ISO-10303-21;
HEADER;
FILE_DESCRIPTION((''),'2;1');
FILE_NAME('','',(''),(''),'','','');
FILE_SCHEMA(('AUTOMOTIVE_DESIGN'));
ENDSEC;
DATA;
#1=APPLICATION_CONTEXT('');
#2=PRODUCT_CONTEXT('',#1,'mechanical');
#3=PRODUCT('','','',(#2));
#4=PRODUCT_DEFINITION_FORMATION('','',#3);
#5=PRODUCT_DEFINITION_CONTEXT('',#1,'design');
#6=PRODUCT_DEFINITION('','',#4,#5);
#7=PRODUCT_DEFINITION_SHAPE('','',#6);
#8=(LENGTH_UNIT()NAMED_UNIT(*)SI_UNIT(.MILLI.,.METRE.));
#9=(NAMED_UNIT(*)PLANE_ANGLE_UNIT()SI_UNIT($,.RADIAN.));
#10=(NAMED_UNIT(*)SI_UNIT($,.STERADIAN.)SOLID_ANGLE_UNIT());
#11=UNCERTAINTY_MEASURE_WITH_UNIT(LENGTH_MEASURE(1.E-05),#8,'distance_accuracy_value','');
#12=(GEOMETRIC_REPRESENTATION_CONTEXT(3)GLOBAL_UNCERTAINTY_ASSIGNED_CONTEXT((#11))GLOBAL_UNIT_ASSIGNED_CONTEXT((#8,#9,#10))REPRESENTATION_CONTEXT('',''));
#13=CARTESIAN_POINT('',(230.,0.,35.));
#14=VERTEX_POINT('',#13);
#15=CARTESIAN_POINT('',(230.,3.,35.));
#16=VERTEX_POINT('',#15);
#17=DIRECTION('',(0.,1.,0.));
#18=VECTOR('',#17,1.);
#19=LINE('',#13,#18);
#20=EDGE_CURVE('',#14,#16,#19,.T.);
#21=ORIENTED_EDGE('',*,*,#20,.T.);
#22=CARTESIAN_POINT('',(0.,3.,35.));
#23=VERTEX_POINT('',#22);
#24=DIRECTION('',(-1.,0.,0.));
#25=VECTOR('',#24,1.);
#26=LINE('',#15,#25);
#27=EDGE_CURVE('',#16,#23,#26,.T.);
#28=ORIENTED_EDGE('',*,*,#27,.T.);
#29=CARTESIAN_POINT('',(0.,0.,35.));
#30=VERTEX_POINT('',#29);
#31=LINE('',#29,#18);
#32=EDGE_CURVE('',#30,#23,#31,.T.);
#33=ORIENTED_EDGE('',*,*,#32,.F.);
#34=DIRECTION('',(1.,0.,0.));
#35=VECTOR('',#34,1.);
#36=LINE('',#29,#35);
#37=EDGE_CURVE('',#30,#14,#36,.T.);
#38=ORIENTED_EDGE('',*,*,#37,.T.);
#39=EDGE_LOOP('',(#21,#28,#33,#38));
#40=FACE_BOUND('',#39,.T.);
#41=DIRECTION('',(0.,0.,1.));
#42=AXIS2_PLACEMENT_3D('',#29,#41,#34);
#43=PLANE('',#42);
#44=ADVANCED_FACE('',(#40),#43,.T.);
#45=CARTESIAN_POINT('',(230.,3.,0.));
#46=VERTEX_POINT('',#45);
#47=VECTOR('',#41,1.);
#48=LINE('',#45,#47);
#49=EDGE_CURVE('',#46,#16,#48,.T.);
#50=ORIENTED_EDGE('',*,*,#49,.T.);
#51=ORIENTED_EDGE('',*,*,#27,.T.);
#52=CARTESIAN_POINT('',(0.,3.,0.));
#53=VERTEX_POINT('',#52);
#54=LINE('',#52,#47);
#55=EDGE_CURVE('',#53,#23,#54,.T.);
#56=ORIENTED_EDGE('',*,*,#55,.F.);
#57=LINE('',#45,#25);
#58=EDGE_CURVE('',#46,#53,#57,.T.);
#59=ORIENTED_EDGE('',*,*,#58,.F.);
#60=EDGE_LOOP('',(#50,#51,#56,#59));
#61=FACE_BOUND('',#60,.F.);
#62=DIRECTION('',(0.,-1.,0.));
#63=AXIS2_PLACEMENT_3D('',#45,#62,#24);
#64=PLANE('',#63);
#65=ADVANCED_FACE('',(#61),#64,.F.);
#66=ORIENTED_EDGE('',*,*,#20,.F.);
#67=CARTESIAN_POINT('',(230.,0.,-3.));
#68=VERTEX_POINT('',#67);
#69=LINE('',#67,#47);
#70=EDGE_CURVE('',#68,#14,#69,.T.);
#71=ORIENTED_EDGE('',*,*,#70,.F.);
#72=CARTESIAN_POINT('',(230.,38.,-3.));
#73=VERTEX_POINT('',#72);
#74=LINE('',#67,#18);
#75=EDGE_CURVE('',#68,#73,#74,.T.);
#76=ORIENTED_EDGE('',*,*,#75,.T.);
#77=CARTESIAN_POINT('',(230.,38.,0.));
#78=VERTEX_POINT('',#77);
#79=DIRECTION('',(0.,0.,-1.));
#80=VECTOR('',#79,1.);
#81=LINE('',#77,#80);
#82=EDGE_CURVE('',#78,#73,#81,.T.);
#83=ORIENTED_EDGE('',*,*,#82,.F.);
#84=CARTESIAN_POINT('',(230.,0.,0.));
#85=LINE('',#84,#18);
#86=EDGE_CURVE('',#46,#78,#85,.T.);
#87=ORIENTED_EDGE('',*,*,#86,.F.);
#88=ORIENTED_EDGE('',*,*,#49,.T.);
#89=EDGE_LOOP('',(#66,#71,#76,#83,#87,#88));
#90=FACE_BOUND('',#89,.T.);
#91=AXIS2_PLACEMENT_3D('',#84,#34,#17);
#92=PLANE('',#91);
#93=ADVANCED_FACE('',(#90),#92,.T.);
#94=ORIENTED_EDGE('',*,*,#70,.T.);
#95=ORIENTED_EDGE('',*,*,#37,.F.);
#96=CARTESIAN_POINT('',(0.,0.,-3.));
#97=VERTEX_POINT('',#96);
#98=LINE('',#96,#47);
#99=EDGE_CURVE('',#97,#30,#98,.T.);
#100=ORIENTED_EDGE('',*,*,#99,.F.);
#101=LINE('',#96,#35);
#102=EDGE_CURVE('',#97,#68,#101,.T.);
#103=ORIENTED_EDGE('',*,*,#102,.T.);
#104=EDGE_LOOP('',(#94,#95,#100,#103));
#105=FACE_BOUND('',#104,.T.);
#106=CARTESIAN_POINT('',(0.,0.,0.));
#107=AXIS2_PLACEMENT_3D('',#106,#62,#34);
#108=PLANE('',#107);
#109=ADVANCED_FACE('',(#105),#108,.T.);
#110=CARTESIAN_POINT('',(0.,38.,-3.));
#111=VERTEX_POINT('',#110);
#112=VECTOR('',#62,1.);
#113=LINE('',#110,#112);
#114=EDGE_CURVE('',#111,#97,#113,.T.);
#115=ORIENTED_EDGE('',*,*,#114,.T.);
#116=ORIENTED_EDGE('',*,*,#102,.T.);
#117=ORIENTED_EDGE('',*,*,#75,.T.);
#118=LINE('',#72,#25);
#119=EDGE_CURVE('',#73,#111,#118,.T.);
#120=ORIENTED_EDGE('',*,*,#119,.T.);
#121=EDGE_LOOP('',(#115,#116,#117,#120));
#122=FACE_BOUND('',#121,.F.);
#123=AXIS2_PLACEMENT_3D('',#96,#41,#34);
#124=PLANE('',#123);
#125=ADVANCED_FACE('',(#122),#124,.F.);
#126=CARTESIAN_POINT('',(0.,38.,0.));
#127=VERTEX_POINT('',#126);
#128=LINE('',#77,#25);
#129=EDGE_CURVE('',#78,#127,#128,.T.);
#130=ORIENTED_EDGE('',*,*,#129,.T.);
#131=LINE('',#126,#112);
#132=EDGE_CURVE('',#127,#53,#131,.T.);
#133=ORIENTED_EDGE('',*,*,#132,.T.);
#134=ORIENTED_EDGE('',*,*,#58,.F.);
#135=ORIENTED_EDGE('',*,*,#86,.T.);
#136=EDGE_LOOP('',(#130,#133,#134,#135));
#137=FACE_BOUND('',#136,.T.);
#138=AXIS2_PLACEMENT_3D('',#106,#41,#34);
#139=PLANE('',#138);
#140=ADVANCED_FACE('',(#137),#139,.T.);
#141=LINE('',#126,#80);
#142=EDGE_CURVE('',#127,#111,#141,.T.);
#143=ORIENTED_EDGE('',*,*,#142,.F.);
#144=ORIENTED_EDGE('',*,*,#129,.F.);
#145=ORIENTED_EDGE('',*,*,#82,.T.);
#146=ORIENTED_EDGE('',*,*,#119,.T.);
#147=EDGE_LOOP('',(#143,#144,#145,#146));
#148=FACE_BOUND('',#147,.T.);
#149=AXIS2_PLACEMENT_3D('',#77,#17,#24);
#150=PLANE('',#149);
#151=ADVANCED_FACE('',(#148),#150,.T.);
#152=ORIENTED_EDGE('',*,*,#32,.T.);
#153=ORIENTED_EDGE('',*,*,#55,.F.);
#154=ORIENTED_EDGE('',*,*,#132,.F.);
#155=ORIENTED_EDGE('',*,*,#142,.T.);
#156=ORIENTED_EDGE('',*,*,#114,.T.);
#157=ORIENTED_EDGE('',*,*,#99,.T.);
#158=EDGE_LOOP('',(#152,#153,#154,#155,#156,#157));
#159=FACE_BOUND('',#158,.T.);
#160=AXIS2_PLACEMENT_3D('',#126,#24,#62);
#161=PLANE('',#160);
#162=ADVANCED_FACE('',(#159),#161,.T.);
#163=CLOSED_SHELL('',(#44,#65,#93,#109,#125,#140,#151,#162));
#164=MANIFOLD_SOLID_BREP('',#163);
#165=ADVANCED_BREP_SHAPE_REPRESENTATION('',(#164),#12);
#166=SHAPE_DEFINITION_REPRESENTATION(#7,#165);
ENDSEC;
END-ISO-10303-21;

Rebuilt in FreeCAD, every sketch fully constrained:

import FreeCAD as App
import Part
import Sketcher
from FreeCAD import Vector
Q = App.Units.Quantity

doc = App.newDocument("Part")
params = doc.addObject("Spreadsheet::Sheet", "Params")
for row, (alias, value) in enumerate([
    ("sketch1_width", "230 mm"),
    ("sketch1_height", "38 mm"),
    ("pad1_length", "3 mm"),
    ("sketch2_width", "230 mm"),
    ("sketch2_height", "3 mm"),
    ("pad2_length", "35 mm"),
], start=1):
    params.set(f"A{row}", alias)
    params.set(f"B{row}", "=" + value)
    params.setAlias(f"B{row}", alias)

body = doc.addObject("PartDesign::Body", "Body")

# Sketch on XY plane
sketch1 = doc.addObject("Sketcher::SketchObject", "Sketch")
body.addObject(sketch1)
sketch1.AttachmentSupport = (doc.XY_Plane, [""])
sketch1.MapMode = "FlatFace"
sketch1.addGeometry(Part.LineSegment(Vector(0, 38, 0), Vector(0, 0, 0)), False)
sketch1.addGeometry(Part.LineSegment(Vector(0, 0, 0), Vector(230, 0, 0)), False)
sketch1.addGeometry(Part.LineSegment(Vector(230, 0, 0), Vector(230, 38, 0)), False)
sketch1.addGeometry(Part.LineSegment(Vector(230, 38, 0), Vector(0, 38, 0)), False)
sketch1.addConstraint(Sketcher.Constraint("Coincident", 0, 2, 1, 1))
sketch1.addConstraint(Sketcher.Constraint("Coincident", 1, 2, 2, 1))
sketch1.addConstraint(Sketcher.Constraint("Coincident", 2, 2, 3, 1))
sketch1.addConstraint(Sketcher.Constraint("Coincident", 3, 2, 0, 1))
sketch1.addConstraint(Sketcher.Constraint("Vertical", 0))
sketch1.addConstraint(Sketcher.Constraint("Horizontal", 1))
sketch1.addConstraint(Sketcher.Constraint("Vertical", 2))
sketch1.addConstraint(Sketcher.Constraint("Horizontal", 3))
sketch1.addConstraint(Sketcher.Constraint("Coincident", 0, 2, -1, 1))
sketch1.addConstraint(Sketcher.Constraint("DistanceX", 1, 1, 1, 2, Q("230 mm")))
sketch1.addConstraint(Sketcher.Constraint("DistanceY", 0, 2, 0, 1, Q("38 mm")))
sketch1.setExpression("Constraints[9]", "Params.sketch1_width")
sketch1.setExpression("Constraints[10]", "Params.sketch1_height")
pad1 = doc.addObject("PartDesign::Pad", "Pad")
body.addObject(pad1)
pad1.Profile = sketch1
pad1.setExpression("Length", "Params.pad1_length")
pad1.Reversed = True

# Sketch on XY plane
sketch2 = doc.addObject("Sketcher::SketchObject", "Sketch001")
body.addObject(sketch2)
sketch2.AttachmentSupport = (doc.XY_Plane, [""])
sketch2.MapMode = "FlatFace"
sketch2.addGeometry(Part.LineSegment(Vector(0, 3, 0), Vector(0, 0, 0)), False)
sketch2.addGeometry(Part.LineSegment(Vector(0, 0, 0), Vector(230, 0, 0)), False)
sketch2.addGeometry(Part.LineSegment(Vector(230, 0, 0), Vector(230, 3, 0)), False)
sketch2.addGeometry(Part.LineSegment(Vector(230, 3, 0), Vector(0, 3, 0)), False)
sketch2.addConstraint(Sketcher.Constraint("Coincident", 0, 2, 1, 1))
sketch2.addConstraint(Sketcher.Constraint("Coincident", 1, 2, 2, 1))
sketch2.addConstraint(Sketcher.Constraint("Coincident", 2, 2, 3, 1))
sketch2.addConstraint(Sketcher.Constraint("Coincident", 3, 2, 0, 1))
sketch2.addConstraint(Sketcher.Constraint("Vertical", 0))
sketch2.addConstraint(Sketcher.Constraint("Horizontal", 1))
sketch2.addConstraint(Sketcher.Constraint("Vertical", 2))
sketch2.addConstraint(Sketcher.Constraint("Horizontal", 3))
sketch2.addConstraint(Sketcher.Constraint("Coincident", 0, 2, -1, 1))
sketch2.addConstraint(Sketcher.Constraint("DistanceX", 1, 1, 1, 2, Q("230 mm")))
sketch2.addConstraint(Sketcher.Constraint("DistanceY", 0, 2, 0, 1, Q("3 mm")))
sketch2.setExpression("Constraints[9]", "Params.sketch2_width")
sketch2.setExpression("Constraints[10]", "Params.sketch2_height")
pad2 = doc.addObject("PartDesign::Pad", "Pad001")
body.addObject(pad2)
pad2.Profile = sketch2
pad2.setExpression("Length", "Params.pad2_length")

doc.recompute()
